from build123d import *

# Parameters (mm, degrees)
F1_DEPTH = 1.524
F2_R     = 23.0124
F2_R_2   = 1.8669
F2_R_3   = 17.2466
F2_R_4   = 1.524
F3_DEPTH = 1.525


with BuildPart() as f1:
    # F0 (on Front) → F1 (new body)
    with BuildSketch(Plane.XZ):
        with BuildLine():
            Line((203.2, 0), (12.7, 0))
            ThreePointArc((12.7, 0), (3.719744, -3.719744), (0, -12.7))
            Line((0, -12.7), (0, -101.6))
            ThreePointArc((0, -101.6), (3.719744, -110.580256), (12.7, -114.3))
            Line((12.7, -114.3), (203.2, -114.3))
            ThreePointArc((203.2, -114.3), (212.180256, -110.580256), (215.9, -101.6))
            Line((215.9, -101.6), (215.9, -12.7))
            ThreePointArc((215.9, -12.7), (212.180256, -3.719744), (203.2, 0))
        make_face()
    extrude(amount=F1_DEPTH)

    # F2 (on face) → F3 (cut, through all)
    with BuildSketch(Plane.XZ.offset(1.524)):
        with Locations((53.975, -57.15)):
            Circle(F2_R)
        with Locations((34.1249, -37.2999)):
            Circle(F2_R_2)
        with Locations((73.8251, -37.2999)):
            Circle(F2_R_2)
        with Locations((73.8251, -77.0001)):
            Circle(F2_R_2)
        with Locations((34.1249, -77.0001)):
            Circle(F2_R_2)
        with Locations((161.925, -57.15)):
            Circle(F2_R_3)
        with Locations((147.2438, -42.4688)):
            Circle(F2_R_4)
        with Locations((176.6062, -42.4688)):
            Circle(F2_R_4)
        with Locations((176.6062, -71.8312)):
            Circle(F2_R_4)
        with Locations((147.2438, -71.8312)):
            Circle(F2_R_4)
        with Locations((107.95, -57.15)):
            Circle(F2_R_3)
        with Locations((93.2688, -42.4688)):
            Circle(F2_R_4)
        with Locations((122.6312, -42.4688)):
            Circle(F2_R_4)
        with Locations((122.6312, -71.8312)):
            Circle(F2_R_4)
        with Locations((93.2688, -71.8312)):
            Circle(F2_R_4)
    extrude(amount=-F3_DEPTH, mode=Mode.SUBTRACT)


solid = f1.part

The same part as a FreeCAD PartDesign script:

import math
import FreeCAD as App
import Part
import Sketcher
from FreeCAD import Vector
Q = App.Units.Quantity

doc = App.newDocument("Part")
body = doc.addObject("PartDesign::Body", "Body")

sketch1 = body.newObject("Sketcher::SketchObject", "Sketch")
sketch1.AttachmentSupport = (doc.getObject("XZ_Plane"), [""])
sketch1.MapMode = "FlatFace"
sketch1.addGeometry([
    Part.LineSegment(Vector(203, 0, 0), Vector(13, 0, 0)),
    Part.ArcOfCircle(Part.Circle(Vector(13, -13, 0), Vector(0, 0, 1), 13), math.radians(90), math.radians(180)),
    Part.LineSegment(Vector(0, -13, 0), Vector(0, -102, 0)),
    Part.ArcOfCircle(Part.Circle(Vector(13, -102, 0), Vector(0, 0, 1), 13), math.radians(-180), math.radians(-90)),
    Part.LineSegment(Vector(13, -114, 0), Vector(203, -114, 0)),
    Part.ArcOfCircle(Part.Circle(Vector(203, -102, 0), Vector(0, 0, 1), 13), math.radians(-90), math.radians(0)),
    Part.LineSegment(Vector(216, -102, 0), Vector(216, -13, 0)),
    Part.ArcOfCircle(Part.Circle(Vector(203, -13, 0), Vector(0, 0, 1), 13), math.radians(0), math.radians(90)),
], False)
sketch1.addConstraint([
    Sketcher.Constraint("Tangent", 0, 2, 1, 1),
    Sketcher.Constraint("Tangent", 1, 2, 2, 1),
    Sketcher.Constraint("Tangent", 2, 2, 3, 1),
    Sketcher.Constraint("Tangent", 3, 2, 4, 1),
    Sketcher.Constraint("Tangent", 4, 2, 5, 1),
    Sketcher.Constraint("Tangent", 5, 2, 6, 1),
    Sketcher.Constraint("Tangent", 6, 2, 7, 1),
    Sketcher.Constraint("Tangent", 7, 2, 0, 1),
    Sketcher.Constraint("Horizontal", 0),
    Sketcher.Constraint("Vertical", 2),
    Sketcher.Constraint("Horizontal", 4),
    Sketcher.Constraint("Vertical", 6),
    Sketcher.Constraint("Equal", 1, 3),
    Sketcher.Constraint("Equal", 3, 5),
    Sketcher.Constraint("Equal", 5, 7),
    Sketcher.Constraint("PointOnObject", 0, 2, -1),
    Sketcher.Constraint("PointOnObject", 1, 2, -2),
    Sketcher.Constraint("Radius", 1, Q("0.5 in")),
    Sketcher.Constraint("DistanceX", 0, 2, 0, 1, Q("7.5 in")),
    Sketcher.Constraint("DistanceY", 2, 2, 2, 1, Q("3.5 in")),
])
pad1 = body.newObject("PartDesign::Pad", "Pad")
pad1.Profile = sketch1
pad1.Length = Q("0.06 in")

sketch2 = body.newObject("Sketcher::SketchObject", "Sketch001")
sketch2.AttachmentSupport = (doc.getObject("XZ_Plane"), [""])
sketch2.MapMode = "FlatFace"
sketch2.AttachmentOffset = App.Placement(Vector(0, 0, 0.06 * 25.4), App.Rotation())
sketch2.addGeometry([
    Part.Circle(Vector(54, -57.1, 0), Vector(0, 0, 1), 23),
    Part.Circle(Vector(34.1, -37.3, 0), Vector(0, 0, 1), 1.9),
    Part.Circle(Vector(73.8, -37.3, 0), Vector(0, 0, 1), 1.9),
    Part.Circle(Vector(73.8, -77, 0), Vector(0, 0, 1), 1.9),
    Part.Circle(Vector(34.1, -77, 0), Vector(0, 0, 1), 1.9),
    Part.Circle(Vector(161.9, -57.1, 0), Vector(0, 0, 1), 17.2),
    Part.Circle(Vector(147.2, -42.5, 0), Vector(0, 0, 1), 1.5),
    Part.Circle(Vector(176.6, -42.5, 0), Vector(0, 0, 1), 1.5),
    Part.Circle(Vector(176.6, -71.8, 0), Vector(0, 0, 1), 1.5),
    Part.Circle(Vector(147.2, -71.8, 0), Vector(0, 0, 1), 1.5),
    Part.Circle(Vector(108, -57.1, 0), Vector(0, 0, 1), 17.2),
    Part.Circle(Vector(93.3, -42.5, 0), Vector(0, 0, 1), 1.5),
    Part.Circle(Vector(122.6, -42.5, 0), Vector(0, 0, 1), 1.5),
    Part.Circle(Vector(122.6, -71.8, 0), Vector(0, 0, 1), 1.5),
    Part.Circle(Vector(93.3, -71.8, 0), Vector(0, 0, 1), 1.5),
], False)
sketch2.addConstraint([
    Sketcher.Constraint("Equal", 1, 2),
    Sketcher.Constraint("Equal", 2, 3),
    Sketcher.Constraint("Equal", 3, 4),
    Sketcher.Constraint("Equal", 6, 7),
    Sketcher.Constraint("Equal", 7, 8),
    Sketcher.Constraint("Equal", 8, 9),
    Sketcher.Constraint("Equal", 5, 10),
    Sketcher.Constraint("Equal", 9, 11),
    Sketcher.Constraint("Equal", 11, 12),
    Sketcher.Constraint("Equal", 12, 13),
    Sketcher.Constraint("Equal", 13, 14),
    Sketcher.Constraint("Horizontal", 1, 3, 2, 3),
    Sketcher.Constraint("Horizontal", 3, 3, 4, 3),
    Sketcher.Constraint("Horizontal", 0, 3, 5, 3),
    Sketcher.Constraint("Horizontal", 6, 3, 7, 3),
    Sketcher.Constraint("Horizontal", 8, 3, 9, 3),
    Sketcher.Constraint("Horizontal", 5, 3, 10, 3),
    Sketcher.Constraint("Horizontal", 7, 3, 11, 3),
    Sketcher.Constraint("Horizontal", 11, 3, 12, 3),
    Sketcher.Constraint("Horizontal", 9, 3, 13, 3),
    Sketcher.Constraint("Horizontal", 13, 3, 14, 3),
    Sketcher.Constraint("Vertical", 2, 3, 3, 3),
    Sketcher.Constraint("Vertical", 1, 3, 4, 3),
    Sketcher.Constraint("Vertical", 7, 3, 8, 3),
    Sketcher.Constraint("Vertical", 6, 3, 9, 3),
    Sketcher.Constraint("Vertical", 12, 3, 13, 3),
    Sketcher.Constraint("Vertical", 11, 3, 14, 3),
    Sketcher.Constraint("Diameter", 6, Q("0.12 in")),
    Sketcher.Constraint("Diameter", 0, Q("1.812 in")),
    Sketcher.Constraint("Diameter", 1, Q("0.147 in")),
    Sketcher.Constraint("Diameter", 5, Q("1.358 in")),
    Sketcher.Constraint("DistanceY", 0, 3, -1, 1, Q("2.25 in")),
    Sketcher.Constraint("DistanceX", -1, 1, 10, 3, Q("4.25 in")),
    Sketcher.Constraint("DistanceX", 0, 3, 5, 3, Q("4.25 in")),
    Sketcher.Constraint("DistanceX", -1, 1, 0, 3, Q("2.125 in")),
    Sketcher.Constraint("DistanceX", -1, 1, 6, 3, Q("5.797 in")),
    Sketcher.Constraint("DistanceY", 6, 3, -1, 1, Q("1.672 in")),
    Sketcher.Constraint("DistanceX", -1, 1, 7, 3, Q("6.953 in")),
    Sketcher.Constraint("DistanceY", 8, 3, -1, 1, Q("2.828 in")),
    Sketcher.Constraint("DistanceX", -1, 1, 11, 3, Q("3.672 in")),
    Sketcher.Constraint("DistanceX", -1, 1, 12, 3, Q("4.828 in")),
    Sketcher.Constraint("DistanceX", 1, 3, 2, 3, Q("1.563 in")),
    Sketcher.Constraint("DistanceY", 3, 3, 2, 3, Q("1.563 in")),
    Sketcher.Constraint("DistanceX", -1, 1, 1, 3, Q("1.3435 in")),
    Sketcher.Constraint("DistanceY", 1, 3, -1, 1, Q("1.4685 in")),
])
pocket1 = body.newObject("PartDesign::Pocket", "Pocket")
pocket1.Profile = sketch2
pocket1.Type = "ThroughAll"

doc.recompute()
